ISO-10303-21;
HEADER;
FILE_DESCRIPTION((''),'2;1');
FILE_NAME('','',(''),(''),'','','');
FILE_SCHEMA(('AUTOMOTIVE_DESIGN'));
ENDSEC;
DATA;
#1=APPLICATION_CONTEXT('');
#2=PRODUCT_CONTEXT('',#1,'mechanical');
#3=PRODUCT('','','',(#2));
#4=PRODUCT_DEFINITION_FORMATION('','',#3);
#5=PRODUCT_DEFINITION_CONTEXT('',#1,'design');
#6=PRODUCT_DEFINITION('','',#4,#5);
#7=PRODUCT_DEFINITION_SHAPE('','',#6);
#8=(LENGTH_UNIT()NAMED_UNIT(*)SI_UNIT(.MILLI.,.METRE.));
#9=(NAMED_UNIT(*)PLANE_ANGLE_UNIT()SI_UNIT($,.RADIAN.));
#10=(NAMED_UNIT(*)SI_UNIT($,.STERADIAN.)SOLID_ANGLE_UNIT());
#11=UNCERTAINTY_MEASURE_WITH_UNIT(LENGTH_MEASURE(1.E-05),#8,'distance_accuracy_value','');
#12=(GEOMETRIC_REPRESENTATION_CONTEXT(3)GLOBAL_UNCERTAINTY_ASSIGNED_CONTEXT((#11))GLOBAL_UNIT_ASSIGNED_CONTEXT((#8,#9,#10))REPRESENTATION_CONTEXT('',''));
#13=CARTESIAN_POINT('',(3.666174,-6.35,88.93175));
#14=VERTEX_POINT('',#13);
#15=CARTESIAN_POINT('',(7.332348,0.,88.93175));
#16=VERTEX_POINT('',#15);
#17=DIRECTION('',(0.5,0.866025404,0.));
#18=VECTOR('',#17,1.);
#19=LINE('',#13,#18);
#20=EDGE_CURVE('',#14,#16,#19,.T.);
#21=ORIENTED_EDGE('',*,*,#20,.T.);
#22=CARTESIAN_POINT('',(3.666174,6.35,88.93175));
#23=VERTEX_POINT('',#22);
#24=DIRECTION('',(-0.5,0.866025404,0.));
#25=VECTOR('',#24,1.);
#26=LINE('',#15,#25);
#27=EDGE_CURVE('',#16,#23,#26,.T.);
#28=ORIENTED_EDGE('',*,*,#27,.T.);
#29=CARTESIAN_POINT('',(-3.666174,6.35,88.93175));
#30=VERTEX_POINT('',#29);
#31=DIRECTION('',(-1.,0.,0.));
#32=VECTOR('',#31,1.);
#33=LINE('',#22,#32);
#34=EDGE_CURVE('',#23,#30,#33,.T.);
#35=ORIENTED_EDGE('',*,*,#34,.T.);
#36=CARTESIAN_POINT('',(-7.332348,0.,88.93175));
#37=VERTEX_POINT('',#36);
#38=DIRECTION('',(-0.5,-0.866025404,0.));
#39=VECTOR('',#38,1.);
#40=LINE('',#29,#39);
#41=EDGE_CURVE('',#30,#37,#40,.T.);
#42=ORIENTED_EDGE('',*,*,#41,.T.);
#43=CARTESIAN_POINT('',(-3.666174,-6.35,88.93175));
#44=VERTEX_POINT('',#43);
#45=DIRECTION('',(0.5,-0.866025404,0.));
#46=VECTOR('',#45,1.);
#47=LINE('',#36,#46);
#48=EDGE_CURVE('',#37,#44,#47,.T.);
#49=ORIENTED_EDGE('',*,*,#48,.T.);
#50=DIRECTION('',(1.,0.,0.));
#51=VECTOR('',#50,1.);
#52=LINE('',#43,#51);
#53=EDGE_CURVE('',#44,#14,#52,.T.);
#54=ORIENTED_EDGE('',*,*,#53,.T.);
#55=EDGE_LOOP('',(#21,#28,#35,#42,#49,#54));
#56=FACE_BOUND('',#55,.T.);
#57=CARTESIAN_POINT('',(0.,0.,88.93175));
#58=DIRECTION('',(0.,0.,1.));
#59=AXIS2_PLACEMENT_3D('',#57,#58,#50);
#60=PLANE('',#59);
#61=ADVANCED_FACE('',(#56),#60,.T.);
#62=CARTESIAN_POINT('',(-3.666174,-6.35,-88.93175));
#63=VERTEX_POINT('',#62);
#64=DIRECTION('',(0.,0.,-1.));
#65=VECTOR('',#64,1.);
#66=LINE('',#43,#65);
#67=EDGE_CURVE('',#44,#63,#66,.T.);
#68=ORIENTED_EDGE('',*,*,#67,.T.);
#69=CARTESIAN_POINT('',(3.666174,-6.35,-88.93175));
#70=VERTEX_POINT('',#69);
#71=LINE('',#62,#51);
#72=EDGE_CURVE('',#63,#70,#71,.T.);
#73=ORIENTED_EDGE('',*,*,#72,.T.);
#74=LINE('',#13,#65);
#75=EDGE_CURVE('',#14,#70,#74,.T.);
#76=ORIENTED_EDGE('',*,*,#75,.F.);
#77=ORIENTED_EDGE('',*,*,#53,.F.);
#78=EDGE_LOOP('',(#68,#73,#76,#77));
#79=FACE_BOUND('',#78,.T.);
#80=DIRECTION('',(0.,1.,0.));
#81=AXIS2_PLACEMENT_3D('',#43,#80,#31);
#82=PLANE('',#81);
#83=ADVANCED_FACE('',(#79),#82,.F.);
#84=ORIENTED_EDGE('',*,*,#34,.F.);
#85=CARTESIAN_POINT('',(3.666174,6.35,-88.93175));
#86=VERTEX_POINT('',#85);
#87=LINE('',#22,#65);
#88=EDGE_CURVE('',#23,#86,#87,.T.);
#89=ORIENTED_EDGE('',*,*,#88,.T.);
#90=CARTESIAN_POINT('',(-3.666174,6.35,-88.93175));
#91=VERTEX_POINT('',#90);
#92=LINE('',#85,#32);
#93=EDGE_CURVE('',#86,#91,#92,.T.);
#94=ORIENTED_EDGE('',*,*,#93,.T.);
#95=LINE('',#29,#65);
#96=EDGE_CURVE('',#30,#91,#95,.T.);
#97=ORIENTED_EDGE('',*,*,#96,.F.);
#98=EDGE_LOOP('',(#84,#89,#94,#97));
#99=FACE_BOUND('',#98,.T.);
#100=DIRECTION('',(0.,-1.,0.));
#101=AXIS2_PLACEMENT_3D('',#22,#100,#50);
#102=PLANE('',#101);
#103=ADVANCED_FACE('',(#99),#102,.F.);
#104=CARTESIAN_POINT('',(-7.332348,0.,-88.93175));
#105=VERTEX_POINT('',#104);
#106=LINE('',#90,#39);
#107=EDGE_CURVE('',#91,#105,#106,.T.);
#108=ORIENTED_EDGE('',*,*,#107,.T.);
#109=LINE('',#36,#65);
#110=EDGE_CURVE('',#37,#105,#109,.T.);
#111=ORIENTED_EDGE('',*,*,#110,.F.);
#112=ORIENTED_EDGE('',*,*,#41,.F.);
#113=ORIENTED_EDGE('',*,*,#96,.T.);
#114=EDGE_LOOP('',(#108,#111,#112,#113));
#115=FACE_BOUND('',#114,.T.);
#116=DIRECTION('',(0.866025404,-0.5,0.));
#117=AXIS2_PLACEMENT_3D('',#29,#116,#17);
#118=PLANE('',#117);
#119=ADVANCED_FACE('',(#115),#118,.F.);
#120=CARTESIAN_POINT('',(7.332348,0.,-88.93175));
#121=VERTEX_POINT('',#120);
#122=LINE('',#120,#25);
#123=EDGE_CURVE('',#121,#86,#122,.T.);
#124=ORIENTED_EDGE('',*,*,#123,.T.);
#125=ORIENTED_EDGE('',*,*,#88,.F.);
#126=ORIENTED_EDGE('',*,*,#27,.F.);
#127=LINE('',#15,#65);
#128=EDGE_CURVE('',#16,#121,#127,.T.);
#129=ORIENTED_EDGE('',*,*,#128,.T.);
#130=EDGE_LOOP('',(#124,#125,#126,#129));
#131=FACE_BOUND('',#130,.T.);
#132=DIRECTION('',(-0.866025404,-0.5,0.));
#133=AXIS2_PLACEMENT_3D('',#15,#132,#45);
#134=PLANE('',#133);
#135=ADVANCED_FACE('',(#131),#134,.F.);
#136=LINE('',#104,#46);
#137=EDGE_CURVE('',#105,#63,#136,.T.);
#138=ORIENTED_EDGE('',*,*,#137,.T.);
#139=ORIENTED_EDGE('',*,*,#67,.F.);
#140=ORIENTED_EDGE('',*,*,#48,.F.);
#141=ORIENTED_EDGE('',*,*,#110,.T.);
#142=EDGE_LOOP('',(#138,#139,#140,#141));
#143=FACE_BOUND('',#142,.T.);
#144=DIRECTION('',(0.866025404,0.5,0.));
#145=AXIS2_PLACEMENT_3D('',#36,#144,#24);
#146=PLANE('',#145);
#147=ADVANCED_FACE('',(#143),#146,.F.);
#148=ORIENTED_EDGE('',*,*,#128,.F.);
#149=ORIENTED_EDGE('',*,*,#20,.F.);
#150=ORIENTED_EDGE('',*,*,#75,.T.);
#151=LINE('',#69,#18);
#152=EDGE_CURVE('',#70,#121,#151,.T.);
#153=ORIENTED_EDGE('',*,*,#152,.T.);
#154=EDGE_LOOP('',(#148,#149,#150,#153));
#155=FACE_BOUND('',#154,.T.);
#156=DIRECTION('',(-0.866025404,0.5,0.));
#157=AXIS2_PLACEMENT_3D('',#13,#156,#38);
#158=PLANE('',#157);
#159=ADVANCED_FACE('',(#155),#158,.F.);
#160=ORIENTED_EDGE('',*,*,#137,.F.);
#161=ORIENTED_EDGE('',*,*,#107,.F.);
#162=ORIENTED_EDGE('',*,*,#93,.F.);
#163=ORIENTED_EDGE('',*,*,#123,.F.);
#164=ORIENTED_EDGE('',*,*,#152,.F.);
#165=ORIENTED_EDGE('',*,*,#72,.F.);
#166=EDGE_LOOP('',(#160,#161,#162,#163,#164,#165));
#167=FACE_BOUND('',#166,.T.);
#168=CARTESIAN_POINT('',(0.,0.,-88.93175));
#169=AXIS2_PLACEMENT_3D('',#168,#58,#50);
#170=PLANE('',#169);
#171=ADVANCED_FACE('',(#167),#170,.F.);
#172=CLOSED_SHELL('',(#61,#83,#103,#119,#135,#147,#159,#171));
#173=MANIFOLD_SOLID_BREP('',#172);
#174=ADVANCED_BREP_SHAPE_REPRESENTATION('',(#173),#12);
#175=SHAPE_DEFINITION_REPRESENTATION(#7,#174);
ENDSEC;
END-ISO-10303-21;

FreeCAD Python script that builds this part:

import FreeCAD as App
import Part
import Sketcher

V = App.Vector
Q = App.Units.Quantity


def add_polygon(sketch, points):
    """Adds a closed chain of lines whose ends are joined by coincident constraints."""
    first, n = sketch.GeometryCount, len(points)
    for a, b in zip(points, points[1:] + points[:1]):
        sketch.addGeometry(Part.LineSegment(App.Vector(*a, 0), App.Vector(*b, 0)), False)
    for i in range(n):
        sketch.addConstraint(Sketcher.Constraint("Coincident", first + i, 2, first + (i + 1) % n, 1))

doc = App.newDocument("Part")
body = doc.addObject("PartDesign::Body", "Body")

# Sketch on XY plane
sketch1 = body.newObject("Sketcher::SketchObject", "Sketch")
sketch1.AttachmentSupport = (doc.getObject("XY_Plane"), [""])
sketch1.MapMode = "FlatFace"
add_polygon(sketch1, [(4, 6), (-4, 6), (-7, 0), (-4, -6), (4, -6), (7, 0)])  # lines 0-5
sketch1.addConstraint(Sketcher.Constraint("Horizontal", 0))
sketch1.addConstraint(Sketcher.Constraint("Horizontal", 3))
sketch1.addConstraint(Sketcher.Constraint("Symmetric", 0, 2, 3, 2, -1, 1))
sketch1.addConstraint(Sketcher.Constraint("Symmetric", 1, 2, 4, 2, -1, 1))
sketch1.addConstraint(Sketcher.Constraint("PointOnObject", 1, 2, -1))
sketch1.addConstraint(Sketcher.Constraint("Parallel", 2, 5))
sketch1.addConstraint(Sketcher.Constraint("Vertical", 0, 2, 2, 2))
sketch1.addConstraint(Sketcher.Constraint("Angle", 1, Q("-120 deg")))
sketch1.addConstraint(Sketcher.Constraint("DistanceY", 2, 2, 0, 2, 12.7))
sketch1.addConstraint(Sketcher.Constraint("DistanceX", 0, 2, 0, 1, 7.332348))
pad1 = body.newObject("PartDesign::Pad", "Pad")
pad1.Profile = sketch1
pad1.Length = 177.8635
pad1.Midplane = True

doc.recompute()
